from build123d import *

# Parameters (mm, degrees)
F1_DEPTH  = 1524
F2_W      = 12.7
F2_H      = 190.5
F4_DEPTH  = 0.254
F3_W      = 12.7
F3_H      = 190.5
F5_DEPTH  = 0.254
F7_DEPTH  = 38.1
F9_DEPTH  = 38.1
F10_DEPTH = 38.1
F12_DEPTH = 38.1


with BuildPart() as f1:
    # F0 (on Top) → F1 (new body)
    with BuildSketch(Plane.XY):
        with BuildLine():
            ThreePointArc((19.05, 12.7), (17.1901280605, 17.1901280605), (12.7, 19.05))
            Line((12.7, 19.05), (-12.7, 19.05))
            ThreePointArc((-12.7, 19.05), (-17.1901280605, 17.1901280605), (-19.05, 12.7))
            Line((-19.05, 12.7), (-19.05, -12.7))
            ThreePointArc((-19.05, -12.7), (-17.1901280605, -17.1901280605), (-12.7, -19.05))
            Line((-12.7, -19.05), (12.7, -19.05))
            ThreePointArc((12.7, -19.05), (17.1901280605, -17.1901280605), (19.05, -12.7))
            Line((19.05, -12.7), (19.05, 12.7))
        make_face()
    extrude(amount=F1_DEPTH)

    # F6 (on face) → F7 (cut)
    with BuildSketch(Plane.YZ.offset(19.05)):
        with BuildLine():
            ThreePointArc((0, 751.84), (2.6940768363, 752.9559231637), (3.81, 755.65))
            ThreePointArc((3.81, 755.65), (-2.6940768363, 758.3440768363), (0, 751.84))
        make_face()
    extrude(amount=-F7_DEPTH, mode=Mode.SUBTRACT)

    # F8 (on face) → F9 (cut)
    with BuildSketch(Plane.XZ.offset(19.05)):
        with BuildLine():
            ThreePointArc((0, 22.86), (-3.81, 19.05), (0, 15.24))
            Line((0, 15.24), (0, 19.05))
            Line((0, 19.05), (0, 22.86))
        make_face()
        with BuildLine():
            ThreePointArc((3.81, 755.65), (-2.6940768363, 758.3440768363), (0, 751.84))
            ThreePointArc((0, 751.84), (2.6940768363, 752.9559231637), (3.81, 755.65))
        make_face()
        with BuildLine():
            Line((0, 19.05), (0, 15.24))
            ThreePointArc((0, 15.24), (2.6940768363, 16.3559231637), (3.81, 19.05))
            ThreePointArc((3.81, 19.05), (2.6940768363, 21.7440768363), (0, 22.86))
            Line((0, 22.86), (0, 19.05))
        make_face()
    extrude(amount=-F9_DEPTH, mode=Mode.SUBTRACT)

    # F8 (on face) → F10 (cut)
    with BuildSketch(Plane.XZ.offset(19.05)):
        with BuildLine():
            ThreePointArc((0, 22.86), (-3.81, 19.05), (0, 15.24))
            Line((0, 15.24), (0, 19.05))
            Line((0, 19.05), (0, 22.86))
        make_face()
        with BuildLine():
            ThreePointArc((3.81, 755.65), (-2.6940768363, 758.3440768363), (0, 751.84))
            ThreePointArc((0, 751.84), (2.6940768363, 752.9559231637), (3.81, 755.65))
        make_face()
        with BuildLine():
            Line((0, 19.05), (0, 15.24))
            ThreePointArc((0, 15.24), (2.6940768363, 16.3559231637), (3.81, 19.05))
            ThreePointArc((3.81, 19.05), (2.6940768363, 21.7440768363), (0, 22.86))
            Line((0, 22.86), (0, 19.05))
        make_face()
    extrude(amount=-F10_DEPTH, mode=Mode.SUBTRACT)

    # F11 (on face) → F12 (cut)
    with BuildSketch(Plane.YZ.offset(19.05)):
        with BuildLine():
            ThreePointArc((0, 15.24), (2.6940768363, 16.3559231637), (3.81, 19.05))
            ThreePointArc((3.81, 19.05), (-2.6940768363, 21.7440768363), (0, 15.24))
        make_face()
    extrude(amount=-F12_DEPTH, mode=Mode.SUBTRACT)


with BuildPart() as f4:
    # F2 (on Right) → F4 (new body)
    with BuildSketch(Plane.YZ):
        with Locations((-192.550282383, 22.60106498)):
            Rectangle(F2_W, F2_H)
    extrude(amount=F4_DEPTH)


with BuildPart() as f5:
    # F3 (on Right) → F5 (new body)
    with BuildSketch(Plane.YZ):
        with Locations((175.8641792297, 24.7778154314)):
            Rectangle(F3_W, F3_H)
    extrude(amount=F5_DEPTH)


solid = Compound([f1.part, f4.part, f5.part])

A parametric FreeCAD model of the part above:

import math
import FreeCAD as App
import Part
import Sketcher
Q = App.Units.Quantity


def add_polygon(sketch, points):
    """Adds a closed chain of lines whose ends are joined by coincident constraints."""
    first, n = sketch.GeometryCount, len(points)
    for a, b in zip(points, points[1:] + points[:1]):
        sketch.addGeometry(Part.LineSegment(App.Vector(*a, 0), App.Vector(*b, 0)), False)
    for i in range(n):
        sketch.addConstraint(Sketcher.Constraint("Coincident", first + i, 2, first + (i + 1) % n, 1))

doc = App.newDocument("Part")
body = doc.addObject("PartDesign::Body", "Body")

# Sketch on XY plane
sketch1 = body.newObject("Sketcher::SketchObject", "Sketch")
sketch1.AttachmentSupport = (doc.getObject("XY_Plane"), [""])
sketch1.MapMode = "FlatFace"
sketch1.addGeometry(Part.ArcOfCircle(Part.Circle(App.Vector(13, 13, 0), App.Vector(0, 0, 1), 6), math.radians(0), math.radians(90)), False)
sketch1.addGeometry(Part.LineSegment(App.Vector(13, 19, 0), App.Vector(-13, 19, 0)), False)
sketch1.addGeometry(Part.ArcOfCircle(Part.Circle(App.Vector(-13, 13, 0), App.Vector(0, 0, 1), 6), math.radians(90), math.radians(180)), False)
sketch1.addGeometry(Part.LineSegment(App.Vector(-19, 13, 0), App.Vector(-19, -13, 0)), False)
sketch1.addGeometry(Part.ArcOfCircle(Part.Circle(App.Vector(-13, -13, 0), App.Vector(0, 0, 1), 6), math.radians(180), math.radians(270)), False)
sketch1.addGeometry(Part.LineSegment(App.Vector(-13, -19, 0), App.Vector(13, -19, 0)), False)
sketch1.addGeometry(Part.ArcOfCircle(Part.Circle(App.Vector(13, -13, 0), App.Vector(0, 0, 1), 6), math.radians(-90), math.radians(0)), False)
sketch1.addGeometry(Part.LineSegment(App.Vector(19, -13, 0), App.Vector(19, 13, 0)), False)
sketch1.addConstraint(Sketcher.Constraint("Tangent", 0, 2, 1, 1))
sketch1.addConstraint(Sketcher.Constraint("Tangent", 1, 2, 2, 1))
sketch1.addConstraint(Sketcher.Constraint("Tangent", 2, 2, 3, 1))
sketch1.addConstraint(Sketcher.Constraint("Tangent", 3, 2, 4, 1))
sketch1.addConstraint(Sketcher.Constraint("Tangent", 4, 2, 5, 1))
sketch1.addConstraint(Sketcher.Constraint("Tangent", 5, 2, 6, 1))
sketch1.addConstraint(Sketcher.Constraint("Tangent", 6, 2, 7, 1))
sketch1.addConstraint(Sketcher.Constraint("Tangent", 7, 2, 0, 1))
sketch1.addConstraint(Sketcher.Constraint("Horizontal", 1))
sketch1.addConstraint(Sketcher.Constraint("Vertical", 3))
sketch1.addConstraint(Sketcher.Constraint("Horizontal", 5))
sketch1.addConstraint(Sketcher.Constraint("Vertical", 7))
sketch1.addConstraint(Sketcher.Constraint("Equal", 0, 2))
sketch1.addConstraint(Sketcher.Constraint("Equal", 2, 4))
sketch1.addConstraint(Sketcher.Constraint("Equal", 4, 6))
sketch1.addConstraint(Sketcher.Constraint("Symmetric", 0, 3, 4, 3, -1, 1))
sketch1.addConstraint(Sketcher.Constraint("Equal", 5, 3))
sketch1.addConstraint(Sketcher.Constraint("DistanceX", 1, 2, 1, 1, Q("1 in")))
sketch1.addConstraint(Sketcher.Constraint("Radius", 0, Q("0.25 in")))
pad1 = body.newObject("PartDesign::Pad", "Pad")
pad1.Profile = sketch1
pad1.Length = Q("60 in")

# Sketch on YZ plane
sketch2 = body.newObject("Sketcher::SketchObject", "Sketch001")
sketch2.AttachmentSupport = (doc.getObject("YZ_Plane"), [""])
sketch2.MapMode = "FlatFace"
sketch2.AttachmentOffset = App.Placement(App.Vector(0, 0, 0.75 * 25.4), App.Rotation())
sketch2.addGeometry(Part.ArcOfCircle(Part.Circle(App.Vector(0, 755.6, 0), App.Vector(0, 0, 1), 3.8), math.radians(-90), math.radians(0)), False)
sketch2.addGeometry(Part.ArcOfCircle(Part.Circle(App.Vector(0, 755.6, 0), App.Vector(0, 0, 1), 3.8), math.radians(0), math.radians(270)), False)
sketch2.addConstraint(Sketcher.Constraint("Tangent", 0, 1, 1, 2))
sketch2.addConstraint(Sketcher.Constraint("Coincident", 1, 1, 0, 2))
sketch2.addConstraint(Sketcher.Constraint("PointOnObject", 0, 3, -2))
sketch2.addConstraint(Sketcher.Constraint("PointOnObject", 0, 1, -2))
sketch2.addConstraint(Sketcher.Constraint("Horizontal", 0, 3, 1, 1))
sketch2.addConstraint(Sketcher.Constraint("Radius", 0, Q("0.15 in")))
sketch2.addConstraint(Sketcher.Constraint("DistanceY", -1, 1, 0, 1, Q("29.6 in")))
pocket1 = body.newObject("PartDesign::Pocket", "Pocket")
pocket1.Profile = sketch2
pocket1.Length = Q("1.5 in")

# Sketch on XZ plane
sketch3 = body.newObject("Sketcher::SketchObject", "Sketch002")
sketch3.AttachmentSupport = (doc.getObject("XZ_Plane"), [""])
sketch3.MapMode = "FlatFace"
sketch3.AttachmentOffset = App.Placement(App.Vector(0, 0, 0.75 * 25.4), App.Rotation())
sketch3.addGeometry(Part.ArcOfCircle(Part.Circle(App.Vector(0, 19.1, 0), App.Vector(0, 0, 1), 3.8), math.radians(90), math.radians(270)), False)
sketch3.addGeometry(Part.ArcOfCircle(Part.Circle(App.Vector(0, 19.1, 0), App.Vector(0, 0, 1), 3.8), math.radians(-90), math.radians(0)), False)
sketch3.addGeometry(Part.ArcOfCircle(Part.Circle(App.Vector(0, 19.1, 0), App.Vector(0, 0, 1), 3.8), math.radians(0), math.radians(90)), False)
sketch3.addGeometry(Part.ArcOfCircle(Part.Circle(App.Vector(0, 755.6, 0), App.Vector(0, 0, 1), 3.8), math.radians(0), math.radians(270)), False)
sketch3.addGeometry(Part.ArcOfCircle(Part.Circle(App.Vector(0, 755.6, 0), App.Vector(0, 0, 1), 3.8), math.radians(-90), math.radians(0)), False)
sketch3.addConstraint(Sketcher.Constraint("Tangent", 0, 2, 1, 1))
sketch3.addConstraint(Sketcher.Constraint("Tangent", 1, 2, 2, 1))
sketch3.addConstraint(Sketcher.Constraint("Tangent", 2, 2, 0, 1))
sketch3.addConstraint(Sketcher.Constraint("Tangent", 3, 1, 4, 2))
sketch3.addConstraint(Sketcher.Constraint("Coincident", 4, 1, 3, 2))
sketch3.addConstraint(Sketcher.Constraint("Equal", 2, 3))
sketch3.addConstraint(Sketcher.Constraint("PointOnObject", 0, 3, -2))
sketch3.addConstraint(Sketcher.Constraint("PointOnObject", 3, 3, -2))
sketch3.addConstraint(Sketcher.Constraint("PointOnObject", 0, 2, -2))
sketch3.addConstraint(Sketcher.Constraint("PointOnObject", 2, 2, -2))
sketch3.addConstraint(Sketcher.Constraint("PointOnObject", 4, 1, -2))
sketch3.addConstraint(Sketcher.Constraint("Horizontal", 2, 3, 1, 2))
sketch3.addConstraint(Sketcher.Constraint("Horizontal", 4, 3, 3, 1))
sketch3.addConstraint(Sketcher.Constraint("Radius", 0, Q("0.15 in")))
sketch3.addConstraint(Sketcher.Constraint("DistanceY", 0, 3, 3, 3, Q("29 in")))
sketch3.addConstraint(Sketcher.Constraint("DistanceY", -1, 1, 0, 2, Q("0.6 in")))
pocket2 = body.newObject("PartDesign::Pocket", "Pocket001")
pocket2.Profile = sketch3
pocket2.Length = Q("1.5 in")

# Sketch on XZ plane
sketch4 = body.newObject("Sketcher::SketchObject", "Sketch003")
sketch4.AttachmentSupport = (doc.getObject("XZ_Plane"), [""])
sketch4.MapMode = "FlatFace"
sketch4.AttachmentOffset = App.Placement(App.Vector(0, 0, 0.75 * 25.4), App.Rotation())
sketch4.addGeometry(Part.ArcOfCircle(Part.Circle(App.Vector(0, 19.1, 0), App.Vector(0, 0, 1), 3.8), math.radians(90), math.radians(270)), False)
sketch4.addGeometry(Part.ArcOfCircle(Part.Circle(App.Vector(0, 19.1, 0), App.Vector(0, 0, 1), 3.8), math.radians(-90), math.radians(0)), False)
sketch4.addGeometry(Part.ArcOfCircle(Part.Circle(App.Vector(0, 19.1, 0), App.Vector(0, 0, 1), 3.8), math.radians(0), math.radians(90)), False)
sketch4.addGeometry(Part.ArcOfCircle(Part.Circle(App.Vector(0, 755.6, 0), App.Vector(0, 0, 1), 3.8), math.radians(0), math.radians(270)), False)
sketch4.addGeometry(Part.ArcOfCircle(Part.Circle(App.Vector(0, 755.6, 0), App.Vector(0, 0, 1), 3.8), math.radians(-90), math.radians(0)), False)
sketch4.addConstraint(Sketcher.Constraint("Tangent", 0, 2, 1, 1))
sketch4.addConstraint(Sketcher.Constraint("Tangent", 1, 2, 2, 1))
sketch4.addConstraint(Sketcher.Constraint("Tangent", 2, 2, 0, 1))
sketch4.addConstraint(Sketcher.Constraint("Tangent", 3, 1, 4, 2))
sketch4.addConstraint(Sketcher.Constraint("Coincident", 4, 1, 3, 2))
sketch4.addConstraint(Sketcher.Constraint("Equal", 2, 3))
sketch4.addConstraint(Sketcher.Constraint("PointOnObject", 0, 3, -2))
sketch4.addConstraint(Sketcher.Constraint("PointOnObject", 3, 3, -2))
sketch4.addConstraint(Sketcher.Constraint("PointOnObject", 0, 2, -2))
sketch4.addConstraint(Sketcher.Constraint("PointOnObject", 2, 2, -2))
sketch4.addConstraint(Sketcher.Constraint("PointOnObject", 4, 1, -2))
sketch4.addConstraint(Sketcher.Constraint("Horizontal", 2, 3, 1, 2))
sketch4.addConstraint(Sketcher.Constraint("Horizontal", 4, 3, 3, 1))
sketch4.addConstraint(Sketcher.Constraint("Radius", 0, Q("0.15 in")))
sketch4.addConstraint(Sketcher.Constraint("DistanceY", 0, 3, 3, 3, Q("29 in")))
sketch4.addConstraint(Sketcher.Constraint("DistanceY", -1, 1, 0, 2, Q("0.6 in")))
pocket3 = body.newObject("PartDesign::Pocket", "Pocket002")
pocket3.Profile = sketch4
pocket3.Length = Q("1.5 in")

# Sketch on YZ plane
sketch5 = body.newObject("Sketcher::SketchObject", "Sketch004")
sketch5.AttachmentSupport = (doc.getObject("YZ_Plane"), [""])
sketch5.MapMode = "FlatFace"
sketch5.AttachmentOffset = App.Placement(App.Vector(0, 0, 0.75 * 25.4), App.Rotation())
sketch5.addGeometry(Part.ArcOfCircle(Part.Circle(App.Vector(0, 19.1, 0), App.Vector(0, 0, 1), 3.8), math.radians(-90), math.radians(0)), False)
sketch5.addGeometry(Part.ArcOfCircle(Part.Circle(App.Vector(0, 19.1, 0), App.Vector(0, 0, 1), 3.8), math.radians(0), math.radians(270)), False)
sketch5.addConstraint(Sketcher.Constraint("Tangent", 0, 1, 1, 2))
sketch5.addConstraint(Sketcher.Constraint("Coincident", 1, 1, 0, 2))
sketch5.addConstraint(Sketcher.Constraint("PointOnObject", 0, 3, -2))
sketch5.addConstraint(Sketcher.Constraint("PointOnObject", 0, 1, -2))
sketch5.addConstraint(Sketcher.Constraint("Horizontal", 0, 3, 1, 1))
sketch5.addConstraint(Sketcher.Constraint("Radius", 0, Q("0.15 in")))
sketch5.addConstraint(Sketcher.Constraint("DistanceY", -1, 1, 0, 1, Q("0.6 in")))
pocket4 = body.newObject("PartDesign::Pocket", "Pocket003")
pocket4.Profile = sketch5
pocket4.Length = Q("1.5 in")
body2 = doc.addObject("PartDesign::Body", "Body001")

# Sketch on YZ plane
sketch6 = body2.newObject("Sketcher::SketchObject", "Sketch005")
sketch6.AttachmentSupport = (doc.getObject("YZ_Plane001"), [""])
sketch6.MapMode = "FlatFace"
add_polygon(sketch6, [(-199, 118), (-199, -73), (-186, -73), (-186, 118)])  # lines 0-3
sketch6.addConstraint(Sketcher.Constraint("Vertical", 0))
sketch6.addConstraint(Sketcher.Constraint("Horizontal", 1))
sketch6.addConstraint(Sketcher.Constraint("Vertical", 2))
sketch6.addConstraint(Sketcher.Constraint("Horizontal", 3))
sketch6.addConstraint(Sketcher.Constraint("DistanceX", 1, 1, 1, 2, Q("0.5 in")))
sketch6.addConstraint(Sketcher.Constraint("DistanceY", 0, 2, 0, 1, Q("7.5 in")))
sketch6.addConstraint(Sketcher.Constraint("DistanceX", 0, 2, -1, 1, Q("198.900282 mm")))
sketch6.addConstraint(Sketcher.Constraint("DistanceY", 0, 2, -1, 1, Q("72.648935 mm")))
pad2 = body2.newObject("PartDesign::Pad", "Pad001")
pad2.Profile = sketch6
pad2.Length = Q("0.01 in")
body3 = doc.addObject("PartDesign::Body", "Body002")

# Sketch on YZ plane
sketch7 = body3.newObject("Sketcher::SketchObject", "Sketch006")
sketch7.AttachmentSupport = (doc.getObject("YZ_Plane002"), [""])
sketch7.MapMode = "FlatFace"
add_polygon(sketch7, [(170, 120), (170, -70), (182, -70), (182, 120)])  # lines 0-3
sketch7.addConstraint(Sketcher.Constraint("Vertical", 0))
sketch7.addConstraint(Sketcher.Constraint("Horizontal", 1))
sketch7.addConstraint(Sketcher.Constraint("Vertical", 2))
sketch7.addConstraint(Sketcher.Constraint("Horizontal", 3))
sketch7.addConstraint(Sketcher.Constraint("DistanceX", 1, 1, 1, 2, Q("0.5 in")))
sketch7.addConstraint(Sketcher.Constraint("DistanceY", 0, 2, 0, 1, Q("7.5 in")))
sketch7.addConstraint(Sketcher.Constraint("DistanceX", -1, 1, 0, 2, Q("169.514179 mm")))
sketch7.addConstraint(Sketcher.Constraint("DistanceY", 0, 2, -1, 1, Q("70.472185 mm")))
pad3 = body3.newObject("PartDesign::Pad", "Pad002")
pad3.Profile = sketch7
pad3.Length = Q("0.01 in")

doc.recompute()
